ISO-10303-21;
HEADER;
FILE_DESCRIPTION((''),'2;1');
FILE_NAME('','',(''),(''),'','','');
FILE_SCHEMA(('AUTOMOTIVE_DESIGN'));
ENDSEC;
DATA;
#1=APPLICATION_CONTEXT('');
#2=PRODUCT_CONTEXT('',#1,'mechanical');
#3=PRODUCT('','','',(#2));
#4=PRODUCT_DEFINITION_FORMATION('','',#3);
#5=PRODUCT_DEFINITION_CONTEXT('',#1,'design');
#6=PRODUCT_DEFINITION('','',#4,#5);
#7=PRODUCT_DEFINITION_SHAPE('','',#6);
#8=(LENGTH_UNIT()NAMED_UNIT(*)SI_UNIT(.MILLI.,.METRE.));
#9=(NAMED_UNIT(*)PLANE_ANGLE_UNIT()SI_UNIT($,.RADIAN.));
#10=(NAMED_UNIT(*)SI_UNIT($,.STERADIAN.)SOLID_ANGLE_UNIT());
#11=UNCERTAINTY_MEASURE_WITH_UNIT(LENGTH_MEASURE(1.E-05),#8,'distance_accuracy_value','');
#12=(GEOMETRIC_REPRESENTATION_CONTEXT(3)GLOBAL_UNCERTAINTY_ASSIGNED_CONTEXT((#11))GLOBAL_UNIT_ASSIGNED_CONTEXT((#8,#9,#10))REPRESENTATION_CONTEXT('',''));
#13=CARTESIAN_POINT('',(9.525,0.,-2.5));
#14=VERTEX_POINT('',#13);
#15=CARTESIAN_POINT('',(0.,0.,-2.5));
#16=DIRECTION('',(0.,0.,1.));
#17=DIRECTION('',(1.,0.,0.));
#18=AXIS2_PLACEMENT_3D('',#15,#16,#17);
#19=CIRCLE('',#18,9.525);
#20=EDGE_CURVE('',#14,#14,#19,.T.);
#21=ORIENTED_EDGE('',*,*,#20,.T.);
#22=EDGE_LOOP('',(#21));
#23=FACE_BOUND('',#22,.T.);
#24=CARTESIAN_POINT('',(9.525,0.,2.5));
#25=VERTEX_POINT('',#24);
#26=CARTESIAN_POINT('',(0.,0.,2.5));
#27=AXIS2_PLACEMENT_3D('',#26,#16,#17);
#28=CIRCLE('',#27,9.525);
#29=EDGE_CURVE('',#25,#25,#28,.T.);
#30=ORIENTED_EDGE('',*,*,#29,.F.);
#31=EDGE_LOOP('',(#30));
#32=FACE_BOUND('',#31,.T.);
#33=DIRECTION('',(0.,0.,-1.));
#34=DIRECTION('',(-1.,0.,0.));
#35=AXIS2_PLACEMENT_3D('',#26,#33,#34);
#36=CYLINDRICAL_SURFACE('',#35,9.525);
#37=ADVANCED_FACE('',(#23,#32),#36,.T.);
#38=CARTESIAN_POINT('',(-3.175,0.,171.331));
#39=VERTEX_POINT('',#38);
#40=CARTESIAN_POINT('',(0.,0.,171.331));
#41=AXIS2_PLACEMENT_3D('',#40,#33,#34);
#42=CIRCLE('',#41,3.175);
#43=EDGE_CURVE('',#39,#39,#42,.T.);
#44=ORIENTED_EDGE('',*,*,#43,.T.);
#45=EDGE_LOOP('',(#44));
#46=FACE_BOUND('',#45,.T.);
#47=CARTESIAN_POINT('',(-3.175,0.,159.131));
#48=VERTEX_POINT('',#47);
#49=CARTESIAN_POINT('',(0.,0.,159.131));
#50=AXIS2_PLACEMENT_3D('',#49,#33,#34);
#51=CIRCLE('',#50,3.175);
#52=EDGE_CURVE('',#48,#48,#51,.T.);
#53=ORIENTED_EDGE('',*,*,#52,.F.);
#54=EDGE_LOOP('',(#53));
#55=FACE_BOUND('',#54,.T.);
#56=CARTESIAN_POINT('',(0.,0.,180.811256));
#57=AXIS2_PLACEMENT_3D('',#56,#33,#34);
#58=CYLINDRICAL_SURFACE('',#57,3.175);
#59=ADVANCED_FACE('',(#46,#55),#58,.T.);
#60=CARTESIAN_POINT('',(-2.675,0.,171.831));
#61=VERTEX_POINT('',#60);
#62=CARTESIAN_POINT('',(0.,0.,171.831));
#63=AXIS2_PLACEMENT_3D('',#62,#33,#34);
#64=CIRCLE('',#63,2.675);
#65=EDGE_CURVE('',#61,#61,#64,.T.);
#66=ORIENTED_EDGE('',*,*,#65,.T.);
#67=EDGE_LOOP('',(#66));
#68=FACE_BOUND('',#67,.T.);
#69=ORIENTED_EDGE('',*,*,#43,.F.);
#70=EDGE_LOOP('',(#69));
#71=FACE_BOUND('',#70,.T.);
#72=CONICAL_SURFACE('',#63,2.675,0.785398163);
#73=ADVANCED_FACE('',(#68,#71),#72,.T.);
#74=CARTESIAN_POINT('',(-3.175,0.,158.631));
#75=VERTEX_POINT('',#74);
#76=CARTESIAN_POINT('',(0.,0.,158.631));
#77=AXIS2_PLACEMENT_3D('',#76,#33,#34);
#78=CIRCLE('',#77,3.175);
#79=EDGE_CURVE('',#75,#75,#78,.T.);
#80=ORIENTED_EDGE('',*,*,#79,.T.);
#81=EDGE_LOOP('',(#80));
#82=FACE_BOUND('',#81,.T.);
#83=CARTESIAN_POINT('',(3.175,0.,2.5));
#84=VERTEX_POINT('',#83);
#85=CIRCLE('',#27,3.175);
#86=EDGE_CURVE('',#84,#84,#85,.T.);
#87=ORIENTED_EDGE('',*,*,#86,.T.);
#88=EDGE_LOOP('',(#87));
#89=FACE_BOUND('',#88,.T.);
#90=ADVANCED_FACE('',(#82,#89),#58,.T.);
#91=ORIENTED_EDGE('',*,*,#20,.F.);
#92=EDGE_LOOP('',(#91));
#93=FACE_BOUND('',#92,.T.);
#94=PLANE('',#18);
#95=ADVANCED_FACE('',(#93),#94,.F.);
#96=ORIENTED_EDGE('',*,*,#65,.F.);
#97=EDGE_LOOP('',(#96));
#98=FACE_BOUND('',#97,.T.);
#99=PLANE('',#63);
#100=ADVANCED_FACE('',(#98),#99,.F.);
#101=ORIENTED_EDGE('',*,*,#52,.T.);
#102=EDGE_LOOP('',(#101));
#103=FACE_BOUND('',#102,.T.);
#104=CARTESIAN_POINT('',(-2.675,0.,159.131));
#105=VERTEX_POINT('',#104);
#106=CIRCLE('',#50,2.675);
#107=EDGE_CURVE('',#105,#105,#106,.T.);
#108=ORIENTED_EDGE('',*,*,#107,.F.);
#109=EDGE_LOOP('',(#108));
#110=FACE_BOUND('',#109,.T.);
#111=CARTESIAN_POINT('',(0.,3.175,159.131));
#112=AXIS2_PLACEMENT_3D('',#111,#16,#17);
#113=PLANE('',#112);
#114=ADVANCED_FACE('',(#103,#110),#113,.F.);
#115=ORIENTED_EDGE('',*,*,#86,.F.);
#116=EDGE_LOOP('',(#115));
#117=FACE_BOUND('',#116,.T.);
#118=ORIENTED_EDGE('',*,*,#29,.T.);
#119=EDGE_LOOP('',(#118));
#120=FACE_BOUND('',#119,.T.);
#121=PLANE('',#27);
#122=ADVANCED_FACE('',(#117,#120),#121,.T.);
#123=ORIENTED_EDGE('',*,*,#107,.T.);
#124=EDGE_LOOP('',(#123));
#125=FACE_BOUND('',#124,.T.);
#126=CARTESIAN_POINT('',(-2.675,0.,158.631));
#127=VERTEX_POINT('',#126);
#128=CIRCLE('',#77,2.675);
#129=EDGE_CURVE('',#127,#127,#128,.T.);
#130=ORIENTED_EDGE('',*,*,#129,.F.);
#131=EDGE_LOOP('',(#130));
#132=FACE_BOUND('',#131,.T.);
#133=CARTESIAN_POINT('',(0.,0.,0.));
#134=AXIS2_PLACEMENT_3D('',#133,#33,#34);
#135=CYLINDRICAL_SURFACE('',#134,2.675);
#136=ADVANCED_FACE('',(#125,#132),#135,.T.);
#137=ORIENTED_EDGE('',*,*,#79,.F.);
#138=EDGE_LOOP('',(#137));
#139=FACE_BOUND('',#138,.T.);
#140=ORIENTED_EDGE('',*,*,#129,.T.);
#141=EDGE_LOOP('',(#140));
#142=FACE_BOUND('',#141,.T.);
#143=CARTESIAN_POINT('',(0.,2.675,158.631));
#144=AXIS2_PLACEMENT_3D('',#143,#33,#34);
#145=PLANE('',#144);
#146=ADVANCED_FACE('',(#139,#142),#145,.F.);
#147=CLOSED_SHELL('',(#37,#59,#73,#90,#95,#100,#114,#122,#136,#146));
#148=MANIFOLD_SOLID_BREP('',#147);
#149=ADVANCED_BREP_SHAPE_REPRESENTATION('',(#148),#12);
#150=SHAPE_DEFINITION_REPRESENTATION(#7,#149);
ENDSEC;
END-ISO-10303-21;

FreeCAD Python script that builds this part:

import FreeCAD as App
import Part
import Sketcher

V = App.Vector
Q = App.Units.Quantity


def add_polygon(sketch, points):
    """Adds a closed chain of lines whose ends are joined by coincident constraints."""
    first, n = sketch.GeometryCount, len(points)
    for a, b in zip(points, points[1:] + points[:1]):
        sketch.addGeometry(Part.LineSegment(App.Vector(*a, 0), App.Vector(*b, 0)), False)
    for i in range(n):
        sketch.addConstraint(Sketcher.Constraint("Coincident", first + i, 2, first + (i + 1) % n, 1))

doc = App.newDocument("Part")
body = doc.addObject("PartDesign::Body", "Body")

sketch1 = body.newObject("Sketcher::SketchObject", "Sketch")
sketch1.AttachmentSupport = (doc.getObject("XY_Plane"), [""])
sketch1.MapMode = "FlatFace"
sketch1.addGeometry(Part.Circle(V(0, 0, 0), V(0, 0, 1), 3.175), False)
sketch1.addConstraint([
    Sketcher.Constraint("Coincident", 0, 3, -1, 1),
    Sketcher.Constraint("Diameter", 0, Q("6.35 mm")),
])
pad1 = body.newObject("PartDesign::Pad", "Pad")
pad1.Profile = sketch1
pad1.Length = 171.831

sketch2 = body.newObject("Sketcher::SketchObject", "Sketch001")
sketch2.AttachmentSupport = (doc.getObject("XY_Plane"), [""])
sketch2.MapMode = "FlatFace"
sketch2.addGeometry(Part.Circle(V(0, 0, 0), V(0, 0, 1), 9.525), False)
sketch2.addConstraint([
    Sketcher.Constraint("Coincident", 0, 3, -1, 1),
    Sketcher.Constraint("Diameter", 0, Q("19.05 mm")),
])
pad2 = body.newObject("PartDesign::Pad", "Pad001")
pad2.Profile = sketch2
pad2.Length = 5
pad2.Midplane = True

sketch3 = body.newObject("Sketcher::SketchObject", "Sketch002")
sketch3.AttachmentSupport = (doc.getObject("YZ_Plane"), [""])
sketch3.MapMode = "FlatFace"
add_polygon(sketch3, [(9.525, 158.631), (9.525, 171.831), (2.675, 171.831), (3.175, 171.331), (3.175, 159.131), (2.675, 159.131), (2.675, 158.631)])
sketch3.addConstraint([
    Sketcher.Constraint("Vertical", 0),
    Sketcher.Constraint("Horizontal", 1),
    Sketcher.Constraint("Vertical", 3),
    Sketcher.Constraint("Horizontal", 4),
    Sketcher.Constraint("Vertical", 5),
    Sketcher.Constraint("Horizontal", 6),
    Sketcher.Constraint("Vertical", 1, 2, 4, 2),
    Sketcher.Constraint("Equal", 4, 5),
    Sketcher.Constraint("Angle", 2, Q("-45 deg")),
    Sketcher.Constraint("DistanceX", 4, 2, 4, 1, Q("0.5 mm")),
    Sketcher.Constraint("DistanceY", 0, 1, 0, 2, Q("13.2 mm")),
    Sketcher.Constraint("DistanceX", 1, 2, 1, 1, Q("6.85 mm")),
    Sketcher.Constraint("DistanceX", -1, 1, 0, 2, Q("9.525 mm")),
    Sketcher.Constraint("DistanceY", -1, 1, 0, 2, Q("171.831 mm")),
])
groove = body.newObject("PartDesign::Groove", "Groove")
groove.Profile = sketch3
groove.ReferenceAxis = (sketch3, ["V_Axis"])
groove.Angle = 360

doc.recompute()
